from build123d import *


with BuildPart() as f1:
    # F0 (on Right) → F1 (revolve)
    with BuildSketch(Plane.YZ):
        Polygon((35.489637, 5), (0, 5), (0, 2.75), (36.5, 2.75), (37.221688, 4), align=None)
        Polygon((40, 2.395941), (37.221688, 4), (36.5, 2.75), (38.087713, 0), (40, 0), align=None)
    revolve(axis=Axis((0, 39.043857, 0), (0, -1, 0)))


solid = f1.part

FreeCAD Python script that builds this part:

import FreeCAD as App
import Part
import Sketcher
Q = App.Units.Quantity

doc = App.newDocument("Part")
body = doc.addObject("PartDesign::Body", "Body")

# Sketch on YZ plane
sketch1 = body.newObject("Sketcher::SketchObject", "Sketch")
sketch1.AttachmentSupport = (doc.getObject("YZ_Plane"), [""])
sketch1.MapMode = "FlatFace"
sketch1.addGeometry([
    Part.LineSegment(App.Vector(35.489637, 5, 0), App.Vector(0, 5, 0)),  # 0
    Part.LineSegment(App.Vector(0, 5, 0), App.Vector(0, 2.75, 0)),  # 1
    Part.LineSegment(App.Vector(0, 2.75, 0), App.Vector(36.5, 2.75, 0)),  # 2
    Part.LineSegment(App.Vector(36.5, 2.75, 0), App.Vector(38.087713, 0, 0)),  # 3
    Part.LineSegment(App.Vector(38.087713, 0, 0), App.Vector(40, 0, 0)),  # 4
    Part.LineSegment(App.Vector(40, 0, 0), App.Vector(40, 2.395941, 0)),  # 5
    Part.LineSegment(App.Vector(40, 2.395941, 0), App.Vector(37.221688, 4, 0)),  # 6
    Part.LineSegment(App.Vector(37.221688, 4, 0), App.Vector(35.489637, 5, 0)),  # 7
], False)
sketch1.addConstraint([
    Sketcher.Constraint("Coincident", 0, 2, 1, 1),
    Sketcher.Constraint("Coincident", 1, 2, 2, 1),
    Sketcher.Constraint("Coincident", 2, 2, 3, 1),
    Sketcher.Constraint("Coincident", 3, 2, 4, 1),
    Sketcher.Constraint("Coincident", 4, 2, 5, 1),
    Sketcher.Constraint("Coincident", 5, 2, 6, 1),
    Sketcher.Constraint("Coincident", 6, 2, 7, 1),
    Sketcher.Constraint("Coincident", 7, 2, 0, 1),
    Sketcher.Constraint("Horizontal", 0),
    Sketcher.Constraint("Vertical", 1),
    Sketcher.Constraint("Horizontal", 2),
    Sketcher.Constraint("Horizontal", 4),
    Sketcher.Constraint("Vertical", 5),
    Sketcher.Constraint("PointOnObject", 0, 2, -2),
    Sketcher.Constraint("PointOnObject", 3, 2, -1),
    Sketcher.Constraint("Parallel", 6, 7),
    Sketcher.Constraint("Angle", 3, Q("-60.000004 deg")),
    Sketcher.Constraint("Angle", 6, Q("150.000003 deg")),
    Sketcher.Constraint("Distance", 7, Q("2 mm")),
    Sketcher.Constraint("DistanceX", 2, 1, 2, 2, Q("36.5 mm")),
    Sketcher.Constraint("DistanceY", -1, 1, 0, 2, Q("5 mm")),
    Sketcher.Constraint("DistanceX", -1, 1, 4, 2, Q("40 mm")),
    Sketcher.Constraint("DistanceY", 1, 2, 1, 1, Q("2.25 mm")),
    Sketcher.Constraint("DistanceY", 5, 1, 5, 2, Q("2.395941 mm")),
])
revolution = body.newObject("PartDesign::Revolution", "Revolution")
revolution.Profile = sketch1
revolution.ReferenceAxis = (sketch1, ["H_Axis"])
revolution.Angle = 360

doc.recompute()
